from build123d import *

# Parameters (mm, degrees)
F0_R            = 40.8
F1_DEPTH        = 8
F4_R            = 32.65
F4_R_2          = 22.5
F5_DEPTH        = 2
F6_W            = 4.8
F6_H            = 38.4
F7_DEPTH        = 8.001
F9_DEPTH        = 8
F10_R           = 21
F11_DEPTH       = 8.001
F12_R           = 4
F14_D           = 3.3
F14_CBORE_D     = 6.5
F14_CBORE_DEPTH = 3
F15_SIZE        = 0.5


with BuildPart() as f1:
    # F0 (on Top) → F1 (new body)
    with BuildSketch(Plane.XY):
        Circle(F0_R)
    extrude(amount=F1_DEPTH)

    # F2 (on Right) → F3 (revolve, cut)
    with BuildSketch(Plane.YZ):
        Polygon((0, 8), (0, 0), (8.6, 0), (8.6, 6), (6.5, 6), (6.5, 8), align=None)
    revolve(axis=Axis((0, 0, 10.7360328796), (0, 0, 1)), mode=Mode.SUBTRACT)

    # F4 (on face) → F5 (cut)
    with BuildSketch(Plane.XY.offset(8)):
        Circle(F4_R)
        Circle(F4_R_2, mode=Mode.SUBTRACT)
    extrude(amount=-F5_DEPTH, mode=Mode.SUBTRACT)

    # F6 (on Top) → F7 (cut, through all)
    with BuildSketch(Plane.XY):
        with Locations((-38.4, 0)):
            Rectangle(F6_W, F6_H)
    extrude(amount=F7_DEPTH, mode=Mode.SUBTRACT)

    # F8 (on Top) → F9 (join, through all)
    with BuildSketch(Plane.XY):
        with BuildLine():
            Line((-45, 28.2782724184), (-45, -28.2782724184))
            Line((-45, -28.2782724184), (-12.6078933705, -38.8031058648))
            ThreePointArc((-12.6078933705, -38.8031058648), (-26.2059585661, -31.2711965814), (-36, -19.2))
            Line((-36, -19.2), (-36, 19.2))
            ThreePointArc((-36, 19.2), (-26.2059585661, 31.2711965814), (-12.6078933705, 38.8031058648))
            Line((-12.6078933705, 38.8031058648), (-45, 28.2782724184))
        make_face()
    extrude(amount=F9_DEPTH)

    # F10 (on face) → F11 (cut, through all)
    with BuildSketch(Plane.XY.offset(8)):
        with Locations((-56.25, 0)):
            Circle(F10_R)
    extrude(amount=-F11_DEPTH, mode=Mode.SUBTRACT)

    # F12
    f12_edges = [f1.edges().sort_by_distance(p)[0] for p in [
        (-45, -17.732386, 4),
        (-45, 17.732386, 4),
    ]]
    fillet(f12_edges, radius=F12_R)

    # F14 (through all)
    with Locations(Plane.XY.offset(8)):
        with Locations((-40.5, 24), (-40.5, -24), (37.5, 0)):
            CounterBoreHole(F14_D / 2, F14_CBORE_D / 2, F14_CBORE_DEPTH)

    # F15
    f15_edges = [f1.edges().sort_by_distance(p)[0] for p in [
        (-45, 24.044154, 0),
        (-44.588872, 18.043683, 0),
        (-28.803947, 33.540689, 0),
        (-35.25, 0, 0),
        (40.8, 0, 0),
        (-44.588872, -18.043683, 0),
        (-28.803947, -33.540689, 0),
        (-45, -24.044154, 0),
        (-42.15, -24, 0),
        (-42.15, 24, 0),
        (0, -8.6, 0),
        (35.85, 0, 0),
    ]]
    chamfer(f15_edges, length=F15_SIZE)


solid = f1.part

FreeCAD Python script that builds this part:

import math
import FreeCAD as App
import Part
import Sketcher
from FreeCAD import Vector
Q = App.Units.Quantity


def edges_at(feature, points):
    """Names of the edges that pass closest to the given points."""
    edges = feature.Shape.Edges
    near = lambda p: min(range(len(edges)), key=lambda i: edges[i].distToShape(Part.Vertex(*p))[0])
    return sorted({f"Edge{near(p) + 1}" for p in points})

doc = App.newDocument("Part")
params = doc.addObject("Spreadsheet::Sheet", "Params")
for row, (alias, value) in enumerate([
    ("sketch1_diameter", "81.6 mm"),
    ("pad1_length", "8 mm"),
    ("sketch2_height", "8 mm"),
    ("sketch2_height2", "6 mm"),
    ("sketch2_width", "8.6 mm"),
    ("sketch2_width2", "2.1 mm"),
    ("groove_angle", "360 deg"),
    ("sketch3_diameter", "45 mm"),
    ("sketch3_diameter2", "65.3 mm"),
    ("pocket1_length", "2 mm"),
    ("sketch4_width", "4.8 mm"),
    ("sketch4_height", "38.4 mm"),
    ("sketch5_radius", "40.8 mm"),
    ("sketch5_height", "38.4 mm"),
    ("pad2_length", "8 mm"),
    ("sketch6_diameter", "42 mm"),
    ("fillet_radius", "4 mm"),
    ("sketch7_diameter", "3.3 mm"),
    ("hole_diameter", "3.3 mm"),
    ("hole_cbore_diameter", "6.5 mm"),
    ("hole_cbore_depth", "3 mm"),
    ("chamfer_size", "0.5 mm"),
], start=1):
    params.set(f"A{row}", alias)
    params.set(f"B{row}", "=" + value)
    params.setAlias(f"B{row}", alias)

body = doc.addObject("PartDesign::Body", "Body")

sketch1 = body.newObject("Sketcher::SketchObject", "Sketch")
sketch1.AttachmentSupport = (doc.getObject("XY_Plane"), [""])
sketch1.MapMode = "FlatFace"
sketch1.addGeometry(Part.Circle(Vector(0, 0, 0), Vector(0, 0, 1), 41), False)
sketch1.addConstraint([
    Sketcher.Constraint("Coincident", 0, 3, -1, 1),
    Sketcher.Constraint("Diameter", 0, 81.6),
])
sketch1.setExpression("Constraints[1]", "Params.sketch1_diameter")
pad1 = body.newObject("PartDesign::Pad", "Pad")
pad1.Profile = sketch1
pad1.setExpression("Length", "Params.pad1_length")

sketch2 = body.newObject("Sketcher::SketchObject", "Sketch001")
sketch2.AttachmentSupport = (doc.getObject("YZ_Plane"), [""])
sketch2.MapMode = "FlatFace"
sketch2.addGeometry([
    Part.LineSegment(Vector(0, 8, 0), Vector(0, 0, 0)),
    Part.LineSegment(Vector(0, 0, 0), Vector(8.6, 0, 0)),
    Part.LineSegment(Vector(8.6, 0, 0), Vector(8.6, 6, 0)),
    Part.LineSegment(Vector(8.6, 6, 0), Vector(6.5, 6, 0)),
    Part.LineSegment(Vector(6.5, 6, 0), Vector(6.5, 8, 0)),
    Part.LineSegment(Vector(6.5, 8, 0), Vector(0, 8, 0)),
], False)
sketch2.addConstraint([
    Sketcher.Constraint("Coincident", 0, 2, 1, 1),
    Sketcher.Constraint("Coincident", 1, 2, 2, 1),
    Sketcher.Constraint("Coincident", 2, 2, 3, 1),
    Sketcher.Constraint("Coincident", 3, 2, 4, 1),
    Sketcher.Constraint("Coincident", 4, 2, 5, 1),
    Sketcher.Constraint("Coincident", 5, 2, 0, 1),
    Sketcher.Constraint("Vertical", 0),
    Sketcher.Constraint("Horizontal", 1),
    Sketcher.Constraint("Vertical", 2),
    Sketcher.Constraint("Horizontal", 3),
    Sketcher.Constraint("Vertical", 4),
    Sketcher.Constraint("Horizontal", 5),
    Sketcher.Constraint("Coincident", 0, 2, -1, 1),
    Sketcher.Constraint("DistanceY", 0, 2, 0, 1, 8.0),
    Sketcher.Constraint("DistanceY", 2, 1, 2, 2, 6.0),
    Sketcher.Constraint("DistanceX", 1, 1, 1, 2, 8.6),
    Sketcher.Constraint("DistanceX", 3, 2, 3, 1, 2.1),
])
sketch2.setExpression("Constraints[13]", "Params.sketch2_height")
sketch2.setExpression("Constraints[14]", "Params.sketch2_height2")
sketch2.setExpression("Constraints[15]", "Params.sketch2_width")
sketch2.setExpression("Constraints[16]", "Params.sketch2_width2")
groove = body.newObject("PartDesign::Groove", "Groove")
groove.Profile = sketch2
groove.ReferenceAxis = (sketch2, ["V_Axis"])
groove.setExpression("Angle", "Params.groove_angle")

sketch3 = body.newObject("Sketcher::SketchObject", "Sketch002")
sketch3.AttachmentSupport = (doc.getObject("XY_Plane"), [""])
sketch3.MapMode = "FlatFace"
sketch3.AttachmentOffset = App.Placement(Vector(0, 0, 8), App.Rotation())
sketch3.addGeometry([
    Part.Circle(Vector(0, 0, 0), Vector(0, 0, 1), 33),
    Part.Circle(Vector(0, 0, 0), Vector(0, 0, 1), 22),
], False)
sketch3.addConstraint([
    Sketcher.Constraint("Coincident", 0, 3, -1, 1),
    Sketcher.Constraint("Coincident", 1, 3, -1, 1),
    Sketcher.Constraint("Diameter", 1, 45.0),
    Sketcher.Constraint("Diameter", 0, 65.3),
])
sketch3.setExpression("Constraints[2]", "Params.sketch3_diameter")
sketch3.setExpression("Constraints[3]", "Params.sketch3_diameter2")
pocket1 = body.newObject("PartDesign::Pocket", "Pocket")
pocket1.Profile = sketch3
pocket1.setExpression("Length", "Params.pocket1_length")

sketch4 = body.newObject("Sketcher::SketchObject", "Sketch003")
sketch4.AttachmentSupport = (doc.getObject("XY_Plane"), [""])
sketch4.MapMode = "FlatFace"
sketch4.addGeometry([
    Part.LineSegment(Vector(-40.8, 19.2, 0), Vector(-40.8, -19.2, 0)),
    Part.LineSegment(Vector(-40.8, -19.2, 0), Vector(-36, -19.2, 0)),
    Part.LineSegment(Vector(-36, -19.2, 0), Vector(-36, 19.2, 0)),
    Part.LineSegment(Vector(-36, 19.2, 0), Vector(-40.8, 19.2, 0)),
], False)
sketch4.addConstraint([
    Sketcher.Constraint("Coincident", 0, 2, 1, 1),
    Sketcher.Constraint("Coincident", 1, 2, 2, 1),
    Sketcher.Constraint("Coincident", 2, 2, 3, 1),
    Sketcher.Constraint("Coincident", 3, 2, 0, 1),
    Sketcher.Constraint("Vertical", 0),
    Sketcher.Constraint("Horizontal", 1),
    Sketcher.Constraint("Vertical", 2),
    Sketcher.Constraint("Horizontal", 3),
    Sketcher.Constraint("DistanceX", 1, 1, 1, 2, 4.8),
    Sketcher.Constraint("DistanceY", 0, 2, 0, 1, 38.4),
    Sketcher.Constraint("DistanceX", 1, 2, -1, 1, 36.0),
    Sketcher.Constraint("DistanceY", 0, 2, -1, 1, 19.2),
])
sketch4.setExpression("Constraints[8]", "Params.sketch4_width")
sketch4.setExpression("Constraints[9]", "Params.sketch4_height")
pocket2 = body.newObject("PartDesign::Pocket", "Pocket001")
pocket2.Profile = sketch4
pocket2.Type = "ThroughAll"
pocket2.Reversed = True

sketch5 = body.newObject("Sketcher::SketchObject", "Sketch004")
sketch5.AttachmentSupport = (doc.getObject("XY_Plane"), [""])
sketch5.MapMode = "FlatFace"
sketch5.addGeometry([
    Part.LineSegment(Vector(-45, 28, 0), Vector(-45, -28, 0)),
    Part.LineSegment(Vector(-45, -28, 0), Vector(-13, -39, 0)),
    Part.ArcOfCircle(Part.Circle(Vector(0, 0, 0), Vector(0, 0, 1), 41), math.radians(-152), math.radians(-108)),
    Part.LineSegment(Vector(-36, -19, 0), Vector(-36, 19, 0)),
    Part.ArcOfCircle(Part.Circle(Vector(0, 0, 0), Vector(0, 0, 1), 41), math.radians(108), math.radians(152)),
    Part.LineSegment(Vector(-13, 39, 0), Vector(-45, 28, 0)),
], False)
sketch5.addConstraint([
    Sketcher.Constraint("Coincident", 0, 2, 1, 1),
    Sketcher.Constraint("Tangent", 1, 2, 2, 2),
    Sketcher.Constraint("Coincident", 2, 1, 3, 1),
    Sketcher.Constraint("Coincident", 3, 2, 4, 2),
    Sketcher.Constraint("Tangent", 4, 1, 5, 1),
    Sketcher.Constraint("Coincident", 5, 2, 0, 1),
    Sketcher.Constraint("Vertical", 0),
    Sketcher.Constraint("Vertical", 3),
    Sketcher.Constraint("Coincident", 2, 3, -1, 1),
    Sketcher.Constraint("Coincident", 4, 3, -1, 1),
    Sketcher.Constraint("Equal", 2, 4),
    Sketcher.Constraint("Vertical", 1, 2, 4, 1),
    Sketcher.Constraint("Radius", 2, 40.8),
    Sketcher.Constraint("Angle", 1, Q("-18 deg")),
    Sketcher.Constraint("DistanceY", 3, 1, 3, 2, 38.4),
    Sketcher.Constraint("DistanceX", 0, 2, -1, 1, 45.0),
])
sketch5.setExpression("Constraints[12]", "Params.sketch5_radius")
sketch5.setExpression("Constraints[14]", "Params.sketch5_height")
pad2 = body.newObject("PartDesign::Pad", "Pad001")
pad2.Profile = sketch5
pad2.setExpression("Length", "Params.pad2_length")

sketch6 = body.newObject("Sketcher::SketchObject", "Sketch005")
sketch6.AttachmentSupport = (doc.getObject("XY_Plane"), [""])
sketch6.MapMode = "FlatFace"
sketch6.AttachmentOffset = App.Placement(Vector(0, 0, 8), App.Rotation())
sketch6.addGeometry(Part.Circle(Vector(-56, 0, 0), Vector(0, 0, 1), 21), False)
sketch6.addConstraint([
    Sketcher.Constraint("PointOnObject", 0, 3, -1),
    Sketcher.Constraint("Diameter", 0, 42.0),
    Sketcher.Constraint("DistanceX", 0, 3, -1, 1, 56.25),
])
sketch6.setExpression("Constraints[1]", "Params.sketch6_diameter")
pocket3 = body.newObject("PartDesign::Pocket", "Pocket002")
pocket3.Profile = sketch6
pocket3.Type = "ThroughAll"
doc.recompute()

fillet = body.newObject("PartDesign::Fillet", "Fillet")
fillet.Base = (pocket3, edges_at(pocket3, [(-45, -17.732, 4), (-45, 17.732, 4)]))
fillet.setExpression("Radius", "Params.fillet_radius")

sketch7 = body.newObject("Sketcher::SketchObject", "Sketch006")
sketch7.AttachmentSupport = (doc.getObject("XY_Plane"), [""])
sketch7.MapMode = "FlatFace"
sketch7.AttachmentOffset = App.Placement(Vector(0, 0, 8), App.Rotation())
sketch7.addGeometry([
    Part.Circle(Vector(-40.5, 24, 0), Vector(0, 0, 1), 1.6),
    Part.Circle(Vector(-40.5, -24, 0), Vector(0, 0, 1), 1.6),
    Part.Circle(Vector(37.5, 0, 0), Vector(0, 0, 1), 1.6),
], False)
sketch7.addConstraint([
    Sketcher.Constraint("Equal", 0, 1),
    Sketcher.Constraint("Equal", 1, 2),
    Sketcher.Constraint("Symmetric", 0, 3, 1, 3, -1),
    Sketcher.Constraint("PointOnObject", 2, 3, -1),
    Sketcher.Constraint("Diameter", 0, 3.3),
    Sketcher.Constraint("DistanceY", -1, 1, 0, 3, 24.0),
    Sketcher.Constraint("DistanceX", 0, 3, 2, 3, 78.0),
    Sketcher.Constraint("DistanceX", 0, 3, -1, 1, 40.5),
])
sketch7.setExpression("Constraints[4]", "Params.sketch7_diameter")
doc.recompute()
hole = body.newObject("PartDesign::Hole", "Hole")
hole.Profile = sketch7
hole.ThreadType = "None"
hole.setExpression("Diameter", "Params.hole_diameter")
hole.DepthType = "ThroughAll"
hole.HoleCutType = "Counterbore"
hole.setExpression("HoleCutDiameter", "Params.hole_cbore_diameter")
hole.setExpression("HoleCutDepth", "Params.hole_cbore_depth")
doc.recompute()

chamfer = body.newObject("PartDesign::Chamfer", "Chamfer")
chamfer.Base = (hole, edges_at(hole, [
    (-45, 24.044, 0),
    (-44.589, 18.044, 0),
    (-28.804, 33.541, 0),
    (-35.25, 0, 0),
    (40.8, 0, 0),
    (-44.589, -18.044, 0),
    (-28.804, -33.541, 0),
    (-45, -24.044, 0),
    (-38.85, -24, 0),
    (-38.85, 24, 0),
    (0, -8.6, 0),
    (39.15, 0, 0),
]))
chamfer.setExpression("Size", "Params.chamfer_size")

doc.recompute()
